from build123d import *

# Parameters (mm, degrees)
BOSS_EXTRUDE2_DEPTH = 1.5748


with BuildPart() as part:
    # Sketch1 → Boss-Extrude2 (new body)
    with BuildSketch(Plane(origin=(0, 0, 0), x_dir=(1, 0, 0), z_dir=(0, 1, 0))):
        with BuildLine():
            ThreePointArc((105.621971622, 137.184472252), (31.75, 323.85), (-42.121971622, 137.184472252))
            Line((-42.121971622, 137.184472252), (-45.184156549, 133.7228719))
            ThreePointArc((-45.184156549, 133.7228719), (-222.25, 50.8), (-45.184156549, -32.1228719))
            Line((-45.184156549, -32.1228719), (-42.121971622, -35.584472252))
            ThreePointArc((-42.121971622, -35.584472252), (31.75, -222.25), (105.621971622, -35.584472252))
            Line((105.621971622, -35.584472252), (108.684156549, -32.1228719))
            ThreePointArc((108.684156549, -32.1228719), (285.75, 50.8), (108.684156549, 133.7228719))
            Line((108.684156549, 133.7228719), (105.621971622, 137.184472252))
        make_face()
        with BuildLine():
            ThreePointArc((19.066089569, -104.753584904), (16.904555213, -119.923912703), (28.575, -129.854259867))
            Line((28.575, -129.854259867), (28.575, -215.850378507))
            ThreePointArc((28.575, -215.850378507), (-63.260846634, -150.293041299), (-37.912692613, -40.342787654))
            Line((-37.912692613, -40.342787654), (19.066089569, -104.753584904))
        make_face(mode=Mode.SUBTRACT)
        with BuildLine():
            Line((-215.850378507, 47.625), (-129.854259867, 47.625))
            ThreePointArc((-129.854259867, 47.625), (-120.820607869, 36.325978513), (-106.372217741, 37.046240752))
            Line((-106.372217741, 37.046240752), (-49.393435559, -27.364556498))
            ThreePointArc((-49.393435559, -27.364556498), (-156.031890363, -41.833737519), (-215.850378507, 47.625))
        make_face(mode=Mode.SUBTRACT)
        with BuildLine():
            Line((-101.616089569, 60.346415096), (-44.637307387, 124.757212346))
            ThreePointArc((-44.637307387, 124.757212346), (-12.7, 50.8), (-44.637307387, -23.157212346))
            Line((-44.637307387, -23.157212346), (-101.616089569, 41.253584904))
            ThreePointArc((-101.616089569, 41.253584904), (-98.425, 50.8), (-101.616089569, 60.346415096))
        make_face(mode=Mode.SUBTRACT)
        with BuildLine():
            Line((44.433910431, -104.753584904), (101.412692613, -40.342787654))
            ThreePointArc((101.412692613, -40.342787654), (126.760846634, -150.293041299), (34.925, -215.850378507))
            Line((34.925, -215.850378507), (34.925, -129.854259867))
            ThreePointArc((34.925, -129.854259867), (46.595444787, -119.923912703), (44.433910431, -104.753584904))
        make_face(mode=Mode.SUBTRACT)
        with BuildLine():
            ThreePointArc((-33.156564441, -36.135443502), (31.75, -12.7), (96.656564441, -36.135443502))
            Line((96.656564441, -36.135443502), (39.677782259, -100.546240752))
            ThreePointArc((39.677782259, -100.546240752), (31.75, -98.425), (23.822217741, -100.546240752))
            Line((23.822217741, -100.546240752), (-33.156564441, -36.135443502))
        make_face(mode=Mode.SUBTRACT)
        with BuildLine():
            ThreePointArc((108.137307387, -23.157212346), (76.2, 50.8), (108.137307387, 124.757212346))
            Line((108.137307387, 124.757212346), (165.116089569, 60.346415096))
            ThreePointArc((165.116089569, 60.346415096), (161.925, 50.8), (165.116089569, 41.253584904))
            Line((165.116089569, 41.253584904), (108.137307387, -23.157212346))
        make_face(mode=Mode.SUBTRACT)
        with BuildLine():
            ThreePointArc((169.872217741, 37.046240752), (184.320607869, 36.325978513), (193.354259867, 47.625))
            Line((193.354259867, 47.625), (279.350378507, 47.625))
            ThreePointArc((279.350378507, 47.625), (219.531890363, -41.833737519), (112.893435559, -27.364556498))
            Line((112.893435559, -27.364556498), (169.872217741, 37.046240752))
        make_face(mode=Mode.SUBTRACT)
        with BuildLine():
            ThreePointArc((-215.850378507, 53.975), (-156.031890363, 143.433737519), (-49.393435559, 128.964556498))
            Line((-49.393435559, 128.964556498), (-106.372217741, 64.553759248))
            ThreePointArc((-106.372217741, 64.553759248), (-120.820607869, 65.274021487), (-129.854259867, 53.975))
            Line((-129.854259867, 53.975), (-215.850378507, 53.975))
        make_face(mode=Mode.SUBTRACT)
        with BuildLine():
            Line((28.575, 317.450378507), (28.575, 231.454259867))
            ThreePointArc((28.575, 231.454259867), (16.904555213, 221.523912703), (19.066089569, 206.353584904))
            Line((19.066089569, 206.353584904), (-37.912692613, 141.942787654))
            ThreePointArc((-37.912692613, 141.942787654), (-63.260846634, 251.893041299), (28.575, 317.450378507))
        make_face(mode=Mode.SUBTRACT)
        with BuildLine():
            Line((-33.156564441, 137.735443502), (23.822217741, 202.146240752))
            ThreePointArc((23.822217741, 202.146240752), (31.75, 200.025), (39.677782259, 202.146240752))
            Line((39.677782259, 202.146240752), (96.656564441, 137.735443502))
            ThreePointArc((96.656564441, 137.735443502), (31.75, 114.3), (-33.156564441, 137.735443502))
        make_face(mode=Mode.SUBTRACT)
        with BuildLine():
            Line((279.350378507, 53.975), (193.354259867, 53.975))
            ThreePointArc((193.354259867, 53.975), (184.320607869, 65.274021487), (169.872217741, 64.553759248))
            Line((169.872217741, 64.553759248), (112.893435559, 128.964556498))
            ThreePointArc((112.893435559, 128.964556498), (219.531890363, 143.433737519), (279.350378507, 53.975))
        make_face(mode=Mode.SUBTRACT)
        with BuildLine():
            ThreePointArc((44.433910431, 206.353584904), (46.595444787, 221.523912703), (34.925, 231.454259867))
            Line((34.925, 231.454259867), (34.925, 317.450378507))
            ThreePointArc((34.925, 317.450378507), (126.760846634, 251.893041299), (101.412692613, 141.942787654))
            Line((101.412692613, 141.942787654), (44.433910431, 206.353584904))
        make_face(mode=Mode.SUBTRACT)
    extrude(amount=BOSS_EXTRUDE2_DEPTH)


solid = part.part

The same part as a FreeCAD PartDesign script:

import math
import FreeCAD as App
import Part
import Sketcher
from FreeCAD import Vector
Q = App.Units.Quantity

doc = App.newDocument("Part")
body = doc.addObject("PartDesign::Body", "Body")

# Sketch on XZ plane
sketch1 = body.newObject("Sketcher::SketchObject", "Sketch")
sketch1.AttachmentSupport = (doc.getObject("XZ_Plane"), [""])
sketch1.MapMode = "FlatFace"
sketch1.addGeometry([
    Part.ArcOfCircle(Part.Circle(Vector(31.75, -215.9, 0), Vector(0, 0, 1), 107.95), math.radians(133.181881), math.radians(406.818119)),  # 0
    Part.LineSegment(Vector(-42.121972, -137.184472, 0), Vector(-45.184157, -133.722872, 0)),  # 1
    Part.ArcOfCircle(Part.Circle(Vector(-114.3, -50.8, 0), Vector(0, 0, 1), 107.95), math.radians(50.188945), math.radians(309.811055)),  # 2
    Part.LineSegment(Vector(-45.184157, 32.122872, 0), Vector(-42.121972, 35.584472, 0)),  # 3
    Part.ArcOfCircle(Part.Circle(Vector(31.75, 114.3, 0), Vector(0, 0, 1), 107.95), math.radians(-46.818119), math.radians(226.818119)),  # 4
    Part.LineSegment(Vector(105.621972, 35.584472, 0), Vector(108.684157, 32.122872, 0)),  # 5
    Part.ArcOfCircle(Part.Circle(Vector(177.8, -50.8, 0), Vector(0, 0, 1), 107.95), math.radians(-129.811055), math.radians(129.811055)),  # 6
    Part.LineSegment(Vector(108.684157, -133.722872, 0), Vector(105.621972, -137.184472, 0)),  # 7
    Part.LineSegment(Vector(-37.912693, 40.342788, 0), Vector(19.06609, 104.753585, 0)),  # 8
    Part.ArcOfCircle(Part.Circle(Vector(31.75, 114.3, 0), Vector(0, 0, 1), 15.875), math.radians(101.536959), math.radians(216.966573)),  # 9
    Part.LineSegment(Vector(28.575, 129.85426, 0), Vector(28.575, 215.850379, 0)),  # 10
    Part.ArcOfCircle(Part.Circle(Vector(31.75, 114.3, 0), Vector(0, 0, 1), 101.6), math.radians(91.790785), math.radians(226.712747)),  # 11
    Part.ArcOfCircle(Part.Circle(Vector(-114.3, -50.8, 0), Vector(0, 0, 1), 101.6), math.radians(50.294316), math.radians(178.209215)),  # 12
    Part.LineSegment(Vector(-215.850379, -47.625, 0), Vector(-129.85426, -47.625, 0)),  # 13
    Part.ArcOfCircle(Part.Circle(Vector(-114.3, -50.8, 0), Vector(0, 0, 1), 15.875), math.radians(60.040491), math.radians(168.463041)),  # 14
    Part.LineSegment(Vector(-106.372218, -37.046241, 0), Vector(-49.393436, 27.364556, 0)),  # 15
    Part.ArcOfCircle(Part.Circle(Vector(-114.3, -50.8, 0), Vector(0, 0, 1), 15.875), math.radians(-36.966573), math.radians(36.966573)),  # 16
    Part.LineSegment(Vector(-101.61609, -60.346415, 0), Vector(-44.637307, -124.757212, 0)),  # 17
    Part.ArcOfCircle(Part.Circle(Vector(-114.3, -50.8, 0), Vector(0, 0, 1), 101.6), math.radians(-46.712747), math.radians(46.712747)),  # 18
    Part.LineSegment(Vector(-44.637307, 23.157212, 0), Vector(-101.61609, -41.253585, 0)),  # 19
    Part.ArcOfCircle(Part.Circle(Vector(31.75, 114.3, 0), Vector(0, 0, 1), 15.875), math.radians(-36.966573), math.radians(78.463041)),  # 20
    Part.LineSegment(Vector(44.43391, 104.753585, 0), Vector(101.412693, 40.342788, 0)),  # 21
    Part.ArcOfCircle(Part.Circle(Vector(31.75, 114.3, 0), Vector(0, 0, 1), 101.6), math.radians(-46.712747), math.radians(88.209215)),  # 22
    Part.LineSegment(Vector(34.925, 215.850379, 0), Vector(34.925, 129.85426, 0)),  # 23
    Part.LineSegment(Vector(23.822218, 100.546241, 0), Vector(-33.156564, 36.135444, 0)),  # 24
    Part.ArcOfCircle(Part.Circle(Vector(31.75, 114.3, 0), Vector(0, 0, 1), 101.6), math.radians(-129.705684), math.radians(-50.294316)),  # 25
    Part.LineSegment(Vector(96.656564, 36.135444, 0), Vector(39.677782, 100.546241, 0)),  # 26
    Part.ArcOfCircle(Part.Circle(Vector(31.75, 114.3, 0), Vector(0, 0, 1), 15.875), math.radians(-119.959509), math.radians(-60.040491)),  # 27
    Part.LineSegment(Vector(165.11609, -41.253585, 0), Vector(108.137307, 23.157212, 0)),  # 28
    Part.ArcOfCircle(Part.Circle(Vector(177.8, -50.8, 0), Vector(0, 0, 1), 101.6), math.radians(133.287253), math.radians(226.712747)),  # 29
    Part.LineSegment(Vector(108.137307, -124.757212, 0), Vector(165.11609, -60.346415, 0)),  # 30
    Part.ArcOfCircle(Part.Circle(Vector(177.8, -50.8, 0), Vector(0, 0, 1), 15.875), math.radians(143.033427), math.radians(216.966573)),  # 31
    Part.LineSegment(Vector(112.893436, 27.364556, 0), Vector(169.872218, -37.046241, 0)),  # 32
    Part.ArcOfCircle(Part.Circle(Vector(177.8, -50.8, 0), Vector(0, 0, 1), 15.875), math.radians(11.536959), math.radians(119.959509)),  # 33
    Part.LineSegment(Vector(193.35426, -47.625, 0), Vector(279.350379, -47.625, 0)),  # 34
    Part.ArcOfCircle(Part.Circle(Vector(177.8, -50.8, 0), Vector(0, 0, 1), 101.6), math.radians(1.790785), math.radians(129.705684)),  # 35
    Part.LineSegment(Vector(-129.85426, -53.975, 0), Vector(-215.850379, -53.975, 0)),  # 36
    Part.ArcOfCircle(Part.Circle(Vector(-114.3, -50.8, 0), Vector(0, 0, 1), 101.6), math.radians(-178.209215), math.radians(-50.294316)),  # 37
    Part.LineSegment(Vector(-49.393436, -128.964556, 0), Vector(-106.372218, -64.553759, 0)),  # 38
    Part.ArcOfCircle(Part.Circle(Vector(-114.3, -50.8, 0), Vector(0, 0, 1), 15.875), math.radians(-168.463041), math.radians(-60.040491)),  # 39
    Part.ArcOfCircle(Part.Circle(Vector(31.75, -215.9, 0), Vector(0, 0, 1), 101.6), math.radians(133.287253), math.radians(268.209215)),  # 40
    Part.LineSegment(Vector(28.575, -317.450379, 0), Vector(28.575, -231.45426, 0)),  # 41
    Part.ArcOfCircle(Part.Circle(Vector(31.75, -215.9, 0), Vector(0, 0, 1), 15.875), math.radians(143.033427), math.radians(258.463041)),  # 42
    Part.LineSegment(Vector(19.06609, -206.353585, 0), Vector(-37.912693, -141.942788, 0)),  # 43
    Part.ArcOfCircle(Part.Circle(Vector(31.75, -215.9, 0), Vector(0, 0, 1), 101.6), math.radians(50.294316), math.radians(129.705684)),  # 44
    Part.LineSegment(Vector(-33.156564, -137.735444, 0), Vector(23.822218, -202.146241, 0)),  # 45
    Part.ArcOfCircle(Part.Circle(Vector(31.75, -215.9, 0), Vector(0, 0, 1), 15.875), math.radians(60.040491), math.radians(119.959509)),  # 46
    Part.LineSegment(Vector(39.677782, -202.146241, 0), Vector(96.656564, -137.735444, 0)),  # 47
    Part.ArcOfCircle(Part.Circle(Vector(177.8, -50.8, 0), Vector(0, 0, 1), 101.6), math.radians(-129.705684), math.radians(-1.790785)),  # 48
    Part.LineSegment(Vector(279.350379, -53.975, 0), Vector(193.35426, -53.975, 0)),  # 49
    Part.ArcOfCircle(Part.Circle(Vector(177.8, -50.8, 0), Vector(0, 0, 1), 15.875), math.radians(-119.959509), math.radians(-11.536959)),  # 50
    Part.LineSegment(Vector(169.872218, -64.553759, 0), Vector(112.893436, -128.964556, 0)),  # 51
    Part.LineSegment(Vector(101.412693, -141.942788, 0), Vector(44.43391, -206.353585, 0)),  # 52
    Part.ArcOfCircle(Part.Circle(Vector(31.75, -215.9, 0), Vector(0, 0, 1), 15.875), math.radians(-78.463041), math.radians(36.966573)),  # 53
    Part.LineSegment(Vector(34.925, -231.45426, 0), Vector(34.925, -317.450379, 0)),  # 54
    Part.ArcOfCircle(Part.Circle(Vector(31.75, -215.9, 0), Vector(0, 0, 1), 101.6), math.radians(-88.209215), math.radians(46.712747)),  # 55
], False)
sketch1.addConstraint([
    Sketcher.Constraint("Coincident", 0, 1, 1, 1),
    Sketcher.Constraint("Coincident", 1, 2, 2, 2),
    Sketcher.Constraint("Coincident", 2, 1, 3, 1),
    Sketcher.Constraint("Coincident", 3, 2, 4, 2),
    Sketcher.Constraint("Coincident", 4, 1, 5, 1),
    Sketcher.Constraint("Coincident", 5, 2, 6, 2),
    Sketcher.Constraint("Coincident", 6, 1, 7, 1),
    Sketcher.Constraint("Coincident", 7, 2, 0, 2),
    Sketcher.Constraint("Coincident", 8, 2, 9, 2),
    Sketcher.Constraint("Coincident", 9, 1, 10, 1),
    Sketcher.Constraint("Coincident", 10, 2, 11, 1),
    Sketcher.Constraint("Coincident", 11, 2, 8, 1),
    Sketcher.Constraint("Coincident", 12, 2, 13, 1),
    Sketcher.Constraint("Coincident", 13, 2, 14, 2),
    Sketcher.Constraint("Coincident", 14, 1, 15, 1),
    Sketcher.Constraint("Coincident", 15, 2, 12, 1),
    Sketcher.Constraint("Coincident", 16, 1, 17, 1),
    Sketcher.Constraint("Coincident", 17, 2, 18, 1),
    Sketcher.Constraint("Coincident", 18, 2, 19, 1),
    Sketcher.Constraint("Coincident", 19, 2, 16, 2),
    Sketcher.Constraint("Coincident", 20, 1, 21, 1),
    Sketcher.Constraint("Coincident", 21, 2, 22, 1),
    Sketcher.Constraint("Coincident", 22, 2, 23, 1),
    Sketcher.Constraint("Coincident", 23, 2, 20, 2),
    Sketcher.Constraint("Coincident", 24, 2, 25, 1),
    Sketcher.Constraint("Coincident", 25, 2, 26, 1),
    Sketcher.Constraint("Coincident", 26, 2, 27, 2),
    Sketcher.Constraint("Coincident", 27, 1, 24, 1),
    Sketcher.Constraint("Coincident", 28, 2, 29, 1),
    Sketcher.Constraint("Coincident", 29, 2, 30, 1),
    Sketcher.Constraint("Coincident", 30, 2, 31, 2),
    Sketcher.Constraint("Coincident", 31, 1, 28, 1),
    Sketcher.Constraint("Coincident", 32, 2, 33, 2),
    Sketcher.Constraint("Coincident", 33, 1, 34, 1),
    Sketcher.Constraint("Coincident", 34, 2, 35, 1),
    Sketcher.Constraint("Coincident", 35, 2, 32, 1),
    Sketcher.Constraint("Coincident", 36, 2, 37, 1),
    Sketcher.Constraint("Coincident", 37, 2, 38, 1),
    Sketcher.Constraint("Coincident", 38, 2, 39, 2),
    Sketcher.Constraint("Coincident", 39, 1, 36, 1),
    Sketcher.Constraint("Coincident", 40, 2, 41, 1),
    Sketcher.Constraint("Coincident", 41, 2, 42, 2),
    Sketcher.Constraint("Coincident", 42, 1, 43, 1),
    Sketcher.Constraint("Coincident", 43, 2, 40, 1),
    Sketcher.Constraint("Coincident", 44, 2, 45, 1),
    Sketcher.Constraint("Coincident", 45, 2, 46, 2),
    Sketcher.Constraint("Coincident", 46, 1, 47, 1),
    Sketcher.Constraint("Coincident", 47, 2, 44, 1),
    Sketcher.Constraint("Coincident", 48, 2, 49, 1),
    Sketcher.Constraint("Coincident", 49, 2, 50, 2),
    Sketcher.Constraint("Coincident", 50, 1, 51, 1),
    Sketcher.Constraint("Coincident", 51, 2, 48, 1),
    Sketcher.Constraint("Coincident", 52, 2, 53, 2),
    Sketcher.Constraint("Coincident", 53, 1, 54, 1),
    Sketcher.Constraint("Coincident", 54, 2, 55, 1),
    Sketcher.Constraint("Coincident", 55, 2, 52, 1),
    Sketcher.Constraint("Vertical", 10),
    Sketcher.Constraint("Horizontal", 13),
    Sketcher.Constraint("Vertical", 23),
    Sketcher.Constraint("Horizontal", 34),
    Sketcher.Constraint("Horizontal", 36),
    Sketcher.Constraint("Vertical", 41),
    Sketcher.Constraint("Horizontal", 49),
    Sketcher.Constraint("Vertical", 54),
    Sketcher.Constraint("Coincident", 9, 3, 4, 3),
    Sketcher.Constraint("Coincident", 11, 3, 4, 3),
    Sketcher.Constraint("Coincident", 12, 3, 2, 3),
    Sketcher.Constraint("Coincident", 14, 3, 2, 3),
    Sketcher.Constraint("Coincident", 16, 3, 2, 3),
    Sketcher.Constraint("Coincident", 18, 3, 2, 3),
    Sketcher.Constraint("Coincident", 20, 3, 4, 3),
    Sketcher.Constraint("Coincident", 22, 3, 4, 3),
    Sketcher.Constraint("Coincident", 25, 3, 4, 3),
    Sketcher.Constraint("Coincident", 27, 3, 4, 3),
    Sketcher.Constraint("Coincident", 29, 3, 6, 3),
    Sketcher.Constraint("Coincident", 31, 3, 6, 3),
    Sketcher.Constraint("Coincident", 33, 3, 6, 3),
    Sketcher.Constraint("Coincident", 35, 3, 6, 3),
    Sketcher.Constraint("Coincident", 37, 3, 2, 3),
    Sketcher.Constraint("Coincident", 39, 3, 2, 3),
    Sketcher.Constraint("Coincident", 40, 3, 0, 3),
    Sketcher.Constraint("Coincident", 42, 3, 0, 3),
    Sketcher.Constraint("Coincident", 44, 3, 0, 3),
    Sketcher.Constraint("Coincident", 46, 3, 0, 3),
    Sketcher.Constraint("Coincident", 48, 3, 6, 3),
    Sketcher.Constraint("Coincident", 50, 3, 6, 3),
    Sketcher.Constraint("Coincident", 53, 3, 0, 3),
    Sketcher.Constraint("Coincident", 55, 3, 0, 3),
    Sketcher.Constraint("Radius", 11, Q("4 in")),
    Sketcher.Constraint("Radius", 12, Q("4 in")),
    Sketcher.Constraint("Radius", 18, Q("4 in")),
    Sketcher.Constraint("Radius", 22, Q("4 in")),
    Sketcher.Constraint("Radius", 25, Q("4 in")),
    Sketcher.Constraint("Radius", 29, Q("4 in")),
    Sketcher.Constraint("Radius", 35, Q("4 in")),
    Sketcher.Constraint("Radius", 37, Q("4 in")),
    Sketcher.Constraint("Radius", 40, Q("4 in")),
    Sketcher.Constraint("Radius", 44, Q("4 in")),
    Sketcher.Constraint("Radius", 48, Q("4 in")),
    Sketcher.Constraint("Radius", 55, Q("4 in")),
    Sketcher.Constraint("Radius", 0, Q("4.25 in")),
    Sketcher.Constraint("Radius", 2, Q("4.25 in")),
    Sketcher.Constraint("Radius", 4, Q("4.25 in")),
    Sketcher.Constraint("Radius", 6, Q("4.25 in")),
    Sketcher.Constraint("DistanceY", 2, 3, -1, 1, Q("2 in")),
    Sketcher.Constraint("DistanceX", -1, 1, 6, 3, Q("7 in")),
    Sketcher.Constraint("DistanceY", 6, 3, -1, 1, Q("2 in")),
    Sketcher.Constraint("Radius", 9, Q("0.625 in")),
    Sketcher.Constraint("Radius", 14, Q("0.625 in")),
    Sketcher.Constraint("Radius", 16, Q("0.625 in")),
    Sketcher.Constraint("Radius", 20, Q("0.625 in")),
    Sketcher.Constraint("Radius", 27, Q("0.625 in")),
    Sketcher.Constraint("Radius", 31, Q("0.625 in")),
    Sketcher.Constraint("Radius", 33, Q("0.625 in")),
    Sketcher.Constraint("Radius", 39, Q("0.625 in")),
    Sketcher.Constraint("Radius", 42, Q("0.625 in")),
    Sketcher.Constraint("Radius", 46, Q("0.625 in")),
    Sketcher.Constraint("Radius", 50, Q("0.625 in")),
    Sketcher.Constraint("Radius", 53, Q("0.625 in")),
    Sketcher.Constraint("DistanceY", 0, 3, -1, 1, Q("8.5 in")),
    Sketcher.Constraint("DistanceX", 2, 3, -1, 1, Q("4.5 in")),
    Sketcher.Constraint("DistanceY", -1, 1, 4, 3, Q("4.5 in")),
    Sketcher.Constraint("DistanceX", -1, 1, 0, 3, Q("1.25 in")),
    Sketcher.Constraint("DistanceX", -1, 1, 4, 3, Q("1.25 in")),
    Sketcher.Constraint("DistanceX", -1, 1, 9, 1, Q("1.125 in")),
    Sketcher.Constraint("DistanceY", 12, 2, -1, 1, Q("1.875 in")),
    Sketcher.Constraint("DistanceX", -1, 1, 22, 2, Q("1.375 in")),
    Sketcher.Constraint("DistanceY", 33, 1, -1, 1, Q("1.875 in")),
    Sketcher.Constraint("DistanceY", 36, 2, -1, 1, Q("2.125 in")),
    Sketcher.Constraint("DistanceX", -1, 1, 40, 2, Q("1.125 in")),
    Sketcher.Constraint("DistanceY", 48, 2, -1, 1, Q("2.125 in")),
    Sketcher.Constraint("DistanceX", -1, 1, 53, 1, Q("1.375 in")),
    Sketcher.Constraint("Distance", 1, 4.621651),
    Sketcher.Constraint("Distance", 3, 4.621651),
    Sketcher.Constraint("Distance", 5, 4.621651),
    Sketcher.Constraint("Distance", 7, 4.621651),
    Sketcher.Constraint("Distance", 8, 85.996119),
    Sketcher.Constraint("Distance", 15, 85.996119),
    Sketcher.Constraint("Distance", 17, 85.996119),
    Sketcher.Constraint("Distance", 19, 85.996119),
    Sketcher.Constraint("Distance", 21, 85.996119),
    Sketcher.Constraint("Distance", 24, 85.996119),
    Sketcher.Constraint("Distance", 26, 85.996119),
    Sketcher.Constraint("Distance", 28, 85.996119),
    Sketcher.Constraint("Distance", 30, 85.996119),
    Sketcher.Constraint("Distance", 32, 85.996119),
    Sketcher.Constraint("Distance", 38, 85.996119),
    Sketcher.Constraint("Distance", 43, 85.996119),
    Sketcher.Constraint("Distance", 45, 85.996119),
    Sketcher.Constraint("Distance", 47, 85.996119),
    Sketcher.Constraint("Distance", 51, 85.996119),
    Sketcher.Constraint("Distance", 52, 85.996119),
    Sketcher.Constraint("DistanceX", 0, 1, -1, 1, 42.121972),
    Sketcher.Constraint("DistanceY", -1, 1, 2, 1, 32.122872),
    Sketcher.Constraint("DistanceX", -1, 1, 4, 1, 105.621972),
    Sketcher.Constraint("DistanceY", 6, 1, -1, 1, 133.722872),
    Sketcher.Constraint("DistanceX", -1, 1, 8, 2, 19.06609),
    Sketcher.Constraint("DistanceY", 14, 1, -1, 1, 37.046241),
    Sketcher.Constraint("DistanceX", 16, 1, -1, 1, 101.61609),
    Sketcher.Constraint("DistanceX", 19, 2, -1, 1, 101.61609),
    Sketcher.Constraint("DistanceX", -1, 1, 20, 1, 44.43391),
    Sketcher.Constraint("DistanceY", -1, 1, 26, 2, 100.546241),
    Sketcher.Constraint("DistanceY", -1, 1, 27, 1, 100.546241),
    Sketcher.Constraint("DistanceX", -1, 1, 30, 2, 165.11609),
    Sketcher.Constraint("DistanceX", -1, 1, 31, 1, 165.11609),
    Sketcher.Constraint("DistanceY", 32, 2, -1, 1, 37.046241),
    Sketcher.Constraint("DistanceY", 38, 2, -1, 1, 64.553759),
    Sketcher.Constraint("DistanceX", -1, 1, 42, 1, 19.06609),
    Sketcher.Constraint("DistanceY", 45, 2, -1, 1, 202.146241),
    Sketcher.Constraint("DistanceY", 46, 1, -1, 1, 202.146241),
    Sketcher.Constraint("DistanceY", 50, 1, -1, 1, 64.553759),
    Sketcher.Constraint("DistanceX", -1, 1, 52, 2, 44.43391),
])
pad1 = body.newObject("PartDesign::Pad", "Pad")
pad1.Profile = sketch1
pad1.Length = Q("0.062 in")
pad1.Reversed = True

doc.recompute()
